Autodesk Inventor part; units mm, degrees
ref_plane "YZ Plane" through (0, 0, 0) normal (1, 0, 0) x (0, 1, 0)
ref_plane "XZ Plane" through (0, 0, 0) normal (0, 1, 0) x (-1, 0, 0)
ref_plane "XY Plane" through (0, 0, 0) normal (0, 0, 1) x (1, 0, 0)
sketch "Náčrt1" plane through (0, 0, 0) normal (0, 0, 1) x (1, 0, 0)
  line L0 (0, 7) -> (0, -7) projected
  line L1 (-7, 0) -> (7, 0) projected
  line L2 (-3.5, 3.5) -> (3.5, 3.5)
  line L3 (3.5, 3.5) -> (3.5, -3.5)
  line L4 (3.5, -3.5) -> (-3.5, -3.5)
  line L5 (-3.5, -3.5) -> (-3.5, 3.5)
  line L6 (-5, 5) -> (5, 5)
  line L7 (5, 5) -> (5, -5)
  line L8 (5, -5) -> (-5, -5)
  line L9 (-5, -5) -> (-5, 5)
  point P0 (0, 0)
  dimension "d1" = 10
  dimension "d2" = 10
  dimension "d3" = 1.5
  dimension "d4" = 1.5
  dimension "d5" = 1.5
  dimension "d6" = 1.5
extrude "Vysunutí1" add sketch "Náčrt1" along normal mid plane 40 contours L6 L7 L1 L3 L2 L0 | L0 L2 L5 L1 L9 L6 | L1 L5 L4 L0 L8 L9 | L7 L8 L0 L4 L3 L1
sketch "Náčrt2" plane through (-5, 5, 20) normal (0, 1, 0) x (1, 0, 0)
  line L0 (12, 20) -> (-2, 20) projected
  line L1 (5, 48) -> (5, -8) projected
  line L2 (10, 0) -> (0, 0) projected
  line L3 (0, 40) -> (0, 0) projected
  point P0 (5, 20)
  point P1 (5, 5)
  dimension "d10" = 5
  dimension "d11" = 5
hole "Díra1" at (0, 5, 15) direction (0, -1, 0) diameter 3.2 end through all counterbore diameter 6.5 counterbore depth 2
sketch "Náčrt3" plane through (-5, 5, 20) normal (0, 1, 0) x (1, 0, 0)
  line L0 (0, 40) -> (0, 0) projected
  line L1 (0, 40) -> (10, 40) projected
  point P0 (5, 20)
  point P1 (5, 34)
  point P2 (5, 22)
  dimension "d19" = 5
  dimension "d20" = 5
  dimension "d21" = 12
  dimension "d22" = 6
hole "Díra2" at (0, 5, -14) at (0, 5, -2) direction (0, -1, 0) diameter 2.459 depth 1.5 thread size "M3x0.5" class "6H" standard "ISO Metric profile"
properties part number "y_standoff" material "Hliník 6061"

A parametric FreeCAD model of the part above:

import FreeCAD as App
import Part
import Sketcher
from FreeCAD import Vector
Q = App.Units.Quantity

doc = App.newDocument("Part")
body = doc.addObject("PartDesign::Body", "Body")

# Sketch on XY plane
sketch1 = body.newObject("Sketcher::SketchObject", "Sketch")
sketch1.AttachmentSupport = (doc.getObject("XY_Plane"), [""])
sketch1.MapMode = "FlatFace"
sketch1.addGeometry(Part.LineSegment(Vector(5, 5, 0), Vector(-5, 5, 0)), False)
sketch1.addGeometry(Part.LineSegment(Vector(-5, 5, 0), Vector(-5, -5, 0)), False)
sketch1.addGeometry(Part.LineSegment(Vector(-5, -5, 0), Vector(5, -5, 0)), False)
sketch1.addGeometry(Part.LineSegment(Vector(5, -5, 0), Vector(5, 5, 0)), False)
sketch1.addGeometry(Part.LineSegment(Vector(4, 4, 0), Vector(4, -4, 0)), False)
sketch1.addGeometry(Part.LineSegment(Vector(4, -4, 0), Vector(-4, -4, 0)), False)
sketch1.addGeometry(Part.LineSegment(Vector(-4, -4, 0), Vector(-4, 4, 0)), False)
sketch1.addGeometry(Part.LineSegment(Vector(-4, 4, 0), Vector(4, 4, 0)), False)
sketch1.addConstraint(Sketcher.Constraint("Coincident", 0, 2, 1, 1))
sketch1.addConstraint(Sketcher.Constraint("Coincident", 1, 2, 2, 1))
sketch1.addConstraint(Sketcher.Constraint("Coincident", 2, 2, 3, 1))
sketch1.addConstraint(Sketcher.Constraint("Coincident", 3, 2, 0, 1))
sketch1.addConstraint(Sketcher.Constraint("Coincident", 4, 2, 5, 1))
sketch1.addConstraint(Sketcher.Constraint("Coincident", 5, 2, 6, 1))
sketch1.addConstraint(Sketcher.Constraint("Coincident", 6, 2, 7, 1))
sketch1.addConstraint(Sketcher.Constraint("Coincident", 7, 2, 4, 1))
sketch1.addConstraint(Sketcher.Constraint("Horizontal", 0))
sketch1.addConstraint(Sketcher.Constraint("Vertical", 1))
sketch1.addConstraint(Sketcher.Constraint("Horizontal", 2))
sketch1.addConstraint(Sketcher.Constraint("Vertical", 3))
sketch1.addConstraint(Sketcher.Constraint("Vertical", 4))
sketch1.addConstraint(Sketcher.Constraint("Horizontal", 5))
sketch1.addConstraint(Sketcher.Constraint("Vertical", 6))
sketch1.addConstraint(Sketcher.Constraint("Horizontal", 7))
sketch1.addConstraint(Sketcher.Constraint("Symmetric", 0, 2, 2, 2, -1, 1))
sketch1.addConstraint(Sketcher.Constraint("Symmetric", 4, 2, 6, 2, -1, 1))
sketch1.addConstraint(Sketcher.Constraint("Equal", 2, 1))
sketch1.addConstraint(Sketcher.Constraint("Equal", 7, 4))
sketch1.addConstraint(Sketcher.Constraint("DistanceX", 0, 2, 0, 1, Q("10 mm")))
sketch1.addConstraint(Sketcher.Constraint("DistanceX", 4, 2, 2, 2, Q("1.5 mm")))
pad1 = body.newObject("PartDesign::Pad", "Pad")
pad1.Profile = sketch1
pad1.Length = 40
pad1.Midplane = True

# Sketch on XZ plane
sketch2 = body.newObject("Sketcher::SketchObject", "Sketch001")
sketch2.AttachmentSupport = (doc.getObject("XZ_Plane"), [""])
sketch2.MapMode = "FlatFace"
sketch2.AttachmentOffset = App.Placement(Vector(0, 0, -5), App.Rotation())
sketch2.addGeometry(Part.Circle(Vector(0, 15, 0), Vector(0, 0, 1), 1.6), False)
sketch2.addConstraint(Sketcher.Constraint("PointOnObject", 0, 3, -2))
sketch2.addConstraint(Sketcher.Constraint("Diameter", 0, Q("3.2 mm")))
sketch2.addConstraint(Sketcher.Constraint("DistanceY", -1, 1, 0, 3, Q("15 mm")))
doc.recompute()
hole = body.newObject("PartDesign::Hole", "Hole")
hole.Profile = sketch2
hole.ThreadType = "None"
hole.Diameter = 3.2
hole.DepthType = "ThroughAll"
hole.HoleCutType = "Counterbore"
hole.HoleCutDiameter = 6.5
hole.HoleCutDepth = 2
hole.Reversed = True

# Sketch on XZ plane
sketch3 = body.newObject("Sketcher::SketchObject", "Sketch002")
sketch3.AttachmentSupport = (doc.getObject("XZ_Plane"), [""])
sketch3.MapMode = "FlatFace"
sketch3.AttachmentOffset = App.Placement(Vector(0, 0, -5), App.Rotation())
sketch3.addGeometry(Part.Circle(Vector(0, -14, 0), Vector(0, 0, 1), 1.2), False)
sketch3.addGeometry(Part.Circle(Vector(0, -2, 0), Vector(0, 0, 1), 1.2), False)
sketch3.addConstraint(Sketcher.Constraint("Equal", 0, 1))
sketch3.addConstraint(Sketcher.Constraint("PointOnObject", 0, 3, -2))
sketch3.addConstraint(Sketcher.Constraint("PointOnObject", 1, 3, -2))
sketch3.addConstraint(Sketcher.Constraint("Diameter", 0, Q("2.459 mm")))
sketch3.addConstraint(Sketcher.Constraint("DistanceY", 0, 3, -1, 1, Q("14 mm")))
sketch3.addConstraint(Sketcher.Constraint("DistanceY", 1, 3, -1, 1, Q("2 mm")))
doc.recompute()
hole2 = body.newObject("PartDesign::Hole", "Hole001")
hole2.Profile = sketch3
hole2.ThreadType = "None"
hole2.Diameter = 2.459
hole2.DepthType = "Dimension"
hole2.Depth = 1.5
hole2.DrillPoint = "Flat"
hole2.Reversed = True

doc.recompute()
